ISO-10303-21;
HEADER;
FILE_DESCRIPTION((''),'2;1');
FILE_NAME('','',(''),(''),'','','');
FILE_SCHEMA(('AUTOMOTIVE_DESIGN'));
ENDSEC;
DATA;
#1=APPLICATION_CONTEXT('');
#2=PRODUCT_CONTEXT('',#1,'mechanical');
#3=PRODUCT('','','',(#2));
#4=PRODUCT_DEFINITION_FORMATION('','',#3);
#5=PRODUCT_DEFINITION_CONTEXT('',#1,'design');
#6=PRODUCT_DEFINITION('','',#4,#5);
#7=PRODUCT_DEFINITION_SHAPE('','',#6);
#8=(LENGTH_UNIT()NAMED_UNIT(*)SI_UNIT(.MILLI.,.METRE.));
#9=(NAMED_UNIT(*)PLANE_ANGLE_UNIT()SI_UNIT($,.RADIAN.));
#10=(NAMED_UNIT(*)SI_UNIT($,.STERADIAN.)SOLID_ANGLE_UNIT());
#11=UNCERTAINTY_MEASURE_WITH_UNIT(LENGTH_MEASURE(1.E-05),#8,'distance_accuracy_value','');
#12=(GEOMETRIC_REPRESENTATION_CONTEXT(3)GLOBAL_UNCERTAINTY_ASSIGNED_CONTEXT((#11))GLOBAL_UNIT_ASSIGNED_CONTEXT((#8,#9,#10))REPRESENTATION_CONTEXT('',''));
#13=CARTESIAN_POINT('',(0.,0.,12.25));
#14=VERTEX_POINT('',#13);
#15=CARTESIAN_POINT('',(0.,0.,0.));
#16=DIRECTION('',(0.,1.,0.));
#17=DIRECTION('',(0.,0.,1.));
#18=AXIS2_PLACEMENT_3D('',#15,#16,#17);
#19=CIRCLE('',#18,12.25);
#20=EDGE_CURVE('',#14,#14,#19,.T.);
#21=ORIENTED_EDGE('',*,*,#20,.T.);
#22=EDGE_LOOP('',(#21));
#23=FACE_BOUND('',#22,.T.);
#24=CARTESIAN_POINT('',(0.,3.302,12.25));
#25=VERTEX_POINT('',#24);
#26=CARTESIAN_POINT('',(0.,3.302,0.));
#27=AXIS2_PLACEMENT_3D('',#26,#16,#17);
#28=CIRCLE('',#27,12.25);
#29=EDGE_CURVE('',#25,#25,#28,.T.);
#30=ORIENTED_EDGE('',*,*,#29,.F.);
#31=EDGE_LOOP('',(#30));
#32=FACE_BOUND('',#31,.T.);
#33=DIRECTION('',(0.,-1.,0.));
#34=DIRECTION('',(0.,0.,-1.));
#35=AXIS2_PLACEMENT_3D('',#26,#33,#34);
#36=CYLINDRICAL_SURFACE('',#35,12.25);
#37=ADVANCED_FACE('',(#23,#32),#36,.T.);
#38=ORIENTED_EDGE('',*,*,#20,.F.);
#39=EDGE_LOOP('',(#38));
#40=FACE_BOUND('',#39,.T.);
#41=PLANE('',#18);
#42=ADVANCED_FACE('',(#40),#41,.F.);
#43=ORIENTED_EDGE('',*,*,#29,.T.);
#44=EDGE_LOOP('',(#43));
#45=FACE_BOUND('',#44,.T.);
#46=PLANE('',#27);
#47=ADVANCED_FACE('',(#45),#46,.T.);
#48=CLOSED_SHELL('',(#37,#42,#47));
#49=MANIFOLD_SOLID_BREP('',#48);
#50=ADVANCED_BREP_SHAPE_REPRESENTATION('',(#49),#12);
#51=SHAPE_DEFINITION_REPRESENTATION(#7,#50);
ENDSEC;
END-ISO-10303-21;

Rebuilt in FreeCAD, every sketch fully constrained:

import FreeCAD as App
import Part
import Sketcher
from FreeCAD import Vector

doc = App.newDocument("Part")
params = doc.addObject("Spreadsheet::Sheet", "Params")
for row, (alias, value) in enumerate([
    ("sketch1_diameter", "24.5 mm"),
    ("pad1_length", "3.302 mm"),
], start=1):
    params.set(f"A{row}", alias)
    params.set(f"B{row}", "=" + value)
    params.setAlias(f"B{row}", alias)

body = doc.addObject("PartDesign::Body", "Body")

sketch1 = body.newObject("Sketcher::SketchObject", "Sketch")
sketch1.AttachmentSupport = (doc.getObject("XZ_Plane"), [""])
sketch1.MapMode = "FlatFace"
sketch1.addGeometry(Part.Circle(Vector(0, 0, 0), Vector(0, 0, 1), 12), False)
sketch1.addConstraint([
    Sketcher.Constraint("Coincident", 0, 3, -1, 1),
    Sketcher.Constraint("Diameter", 0, 24.5),
])
sketch1.setExpression("Constraints[1]", "Params.sketch1_diameter")
pad1 = body.newObject("PartDesign::Pad", "Pad")
pad1.Profile = sketch1
pad1.setExpression("Length", "Params.pad1_length")
pad1.Reversed = True

doc.recompute()
